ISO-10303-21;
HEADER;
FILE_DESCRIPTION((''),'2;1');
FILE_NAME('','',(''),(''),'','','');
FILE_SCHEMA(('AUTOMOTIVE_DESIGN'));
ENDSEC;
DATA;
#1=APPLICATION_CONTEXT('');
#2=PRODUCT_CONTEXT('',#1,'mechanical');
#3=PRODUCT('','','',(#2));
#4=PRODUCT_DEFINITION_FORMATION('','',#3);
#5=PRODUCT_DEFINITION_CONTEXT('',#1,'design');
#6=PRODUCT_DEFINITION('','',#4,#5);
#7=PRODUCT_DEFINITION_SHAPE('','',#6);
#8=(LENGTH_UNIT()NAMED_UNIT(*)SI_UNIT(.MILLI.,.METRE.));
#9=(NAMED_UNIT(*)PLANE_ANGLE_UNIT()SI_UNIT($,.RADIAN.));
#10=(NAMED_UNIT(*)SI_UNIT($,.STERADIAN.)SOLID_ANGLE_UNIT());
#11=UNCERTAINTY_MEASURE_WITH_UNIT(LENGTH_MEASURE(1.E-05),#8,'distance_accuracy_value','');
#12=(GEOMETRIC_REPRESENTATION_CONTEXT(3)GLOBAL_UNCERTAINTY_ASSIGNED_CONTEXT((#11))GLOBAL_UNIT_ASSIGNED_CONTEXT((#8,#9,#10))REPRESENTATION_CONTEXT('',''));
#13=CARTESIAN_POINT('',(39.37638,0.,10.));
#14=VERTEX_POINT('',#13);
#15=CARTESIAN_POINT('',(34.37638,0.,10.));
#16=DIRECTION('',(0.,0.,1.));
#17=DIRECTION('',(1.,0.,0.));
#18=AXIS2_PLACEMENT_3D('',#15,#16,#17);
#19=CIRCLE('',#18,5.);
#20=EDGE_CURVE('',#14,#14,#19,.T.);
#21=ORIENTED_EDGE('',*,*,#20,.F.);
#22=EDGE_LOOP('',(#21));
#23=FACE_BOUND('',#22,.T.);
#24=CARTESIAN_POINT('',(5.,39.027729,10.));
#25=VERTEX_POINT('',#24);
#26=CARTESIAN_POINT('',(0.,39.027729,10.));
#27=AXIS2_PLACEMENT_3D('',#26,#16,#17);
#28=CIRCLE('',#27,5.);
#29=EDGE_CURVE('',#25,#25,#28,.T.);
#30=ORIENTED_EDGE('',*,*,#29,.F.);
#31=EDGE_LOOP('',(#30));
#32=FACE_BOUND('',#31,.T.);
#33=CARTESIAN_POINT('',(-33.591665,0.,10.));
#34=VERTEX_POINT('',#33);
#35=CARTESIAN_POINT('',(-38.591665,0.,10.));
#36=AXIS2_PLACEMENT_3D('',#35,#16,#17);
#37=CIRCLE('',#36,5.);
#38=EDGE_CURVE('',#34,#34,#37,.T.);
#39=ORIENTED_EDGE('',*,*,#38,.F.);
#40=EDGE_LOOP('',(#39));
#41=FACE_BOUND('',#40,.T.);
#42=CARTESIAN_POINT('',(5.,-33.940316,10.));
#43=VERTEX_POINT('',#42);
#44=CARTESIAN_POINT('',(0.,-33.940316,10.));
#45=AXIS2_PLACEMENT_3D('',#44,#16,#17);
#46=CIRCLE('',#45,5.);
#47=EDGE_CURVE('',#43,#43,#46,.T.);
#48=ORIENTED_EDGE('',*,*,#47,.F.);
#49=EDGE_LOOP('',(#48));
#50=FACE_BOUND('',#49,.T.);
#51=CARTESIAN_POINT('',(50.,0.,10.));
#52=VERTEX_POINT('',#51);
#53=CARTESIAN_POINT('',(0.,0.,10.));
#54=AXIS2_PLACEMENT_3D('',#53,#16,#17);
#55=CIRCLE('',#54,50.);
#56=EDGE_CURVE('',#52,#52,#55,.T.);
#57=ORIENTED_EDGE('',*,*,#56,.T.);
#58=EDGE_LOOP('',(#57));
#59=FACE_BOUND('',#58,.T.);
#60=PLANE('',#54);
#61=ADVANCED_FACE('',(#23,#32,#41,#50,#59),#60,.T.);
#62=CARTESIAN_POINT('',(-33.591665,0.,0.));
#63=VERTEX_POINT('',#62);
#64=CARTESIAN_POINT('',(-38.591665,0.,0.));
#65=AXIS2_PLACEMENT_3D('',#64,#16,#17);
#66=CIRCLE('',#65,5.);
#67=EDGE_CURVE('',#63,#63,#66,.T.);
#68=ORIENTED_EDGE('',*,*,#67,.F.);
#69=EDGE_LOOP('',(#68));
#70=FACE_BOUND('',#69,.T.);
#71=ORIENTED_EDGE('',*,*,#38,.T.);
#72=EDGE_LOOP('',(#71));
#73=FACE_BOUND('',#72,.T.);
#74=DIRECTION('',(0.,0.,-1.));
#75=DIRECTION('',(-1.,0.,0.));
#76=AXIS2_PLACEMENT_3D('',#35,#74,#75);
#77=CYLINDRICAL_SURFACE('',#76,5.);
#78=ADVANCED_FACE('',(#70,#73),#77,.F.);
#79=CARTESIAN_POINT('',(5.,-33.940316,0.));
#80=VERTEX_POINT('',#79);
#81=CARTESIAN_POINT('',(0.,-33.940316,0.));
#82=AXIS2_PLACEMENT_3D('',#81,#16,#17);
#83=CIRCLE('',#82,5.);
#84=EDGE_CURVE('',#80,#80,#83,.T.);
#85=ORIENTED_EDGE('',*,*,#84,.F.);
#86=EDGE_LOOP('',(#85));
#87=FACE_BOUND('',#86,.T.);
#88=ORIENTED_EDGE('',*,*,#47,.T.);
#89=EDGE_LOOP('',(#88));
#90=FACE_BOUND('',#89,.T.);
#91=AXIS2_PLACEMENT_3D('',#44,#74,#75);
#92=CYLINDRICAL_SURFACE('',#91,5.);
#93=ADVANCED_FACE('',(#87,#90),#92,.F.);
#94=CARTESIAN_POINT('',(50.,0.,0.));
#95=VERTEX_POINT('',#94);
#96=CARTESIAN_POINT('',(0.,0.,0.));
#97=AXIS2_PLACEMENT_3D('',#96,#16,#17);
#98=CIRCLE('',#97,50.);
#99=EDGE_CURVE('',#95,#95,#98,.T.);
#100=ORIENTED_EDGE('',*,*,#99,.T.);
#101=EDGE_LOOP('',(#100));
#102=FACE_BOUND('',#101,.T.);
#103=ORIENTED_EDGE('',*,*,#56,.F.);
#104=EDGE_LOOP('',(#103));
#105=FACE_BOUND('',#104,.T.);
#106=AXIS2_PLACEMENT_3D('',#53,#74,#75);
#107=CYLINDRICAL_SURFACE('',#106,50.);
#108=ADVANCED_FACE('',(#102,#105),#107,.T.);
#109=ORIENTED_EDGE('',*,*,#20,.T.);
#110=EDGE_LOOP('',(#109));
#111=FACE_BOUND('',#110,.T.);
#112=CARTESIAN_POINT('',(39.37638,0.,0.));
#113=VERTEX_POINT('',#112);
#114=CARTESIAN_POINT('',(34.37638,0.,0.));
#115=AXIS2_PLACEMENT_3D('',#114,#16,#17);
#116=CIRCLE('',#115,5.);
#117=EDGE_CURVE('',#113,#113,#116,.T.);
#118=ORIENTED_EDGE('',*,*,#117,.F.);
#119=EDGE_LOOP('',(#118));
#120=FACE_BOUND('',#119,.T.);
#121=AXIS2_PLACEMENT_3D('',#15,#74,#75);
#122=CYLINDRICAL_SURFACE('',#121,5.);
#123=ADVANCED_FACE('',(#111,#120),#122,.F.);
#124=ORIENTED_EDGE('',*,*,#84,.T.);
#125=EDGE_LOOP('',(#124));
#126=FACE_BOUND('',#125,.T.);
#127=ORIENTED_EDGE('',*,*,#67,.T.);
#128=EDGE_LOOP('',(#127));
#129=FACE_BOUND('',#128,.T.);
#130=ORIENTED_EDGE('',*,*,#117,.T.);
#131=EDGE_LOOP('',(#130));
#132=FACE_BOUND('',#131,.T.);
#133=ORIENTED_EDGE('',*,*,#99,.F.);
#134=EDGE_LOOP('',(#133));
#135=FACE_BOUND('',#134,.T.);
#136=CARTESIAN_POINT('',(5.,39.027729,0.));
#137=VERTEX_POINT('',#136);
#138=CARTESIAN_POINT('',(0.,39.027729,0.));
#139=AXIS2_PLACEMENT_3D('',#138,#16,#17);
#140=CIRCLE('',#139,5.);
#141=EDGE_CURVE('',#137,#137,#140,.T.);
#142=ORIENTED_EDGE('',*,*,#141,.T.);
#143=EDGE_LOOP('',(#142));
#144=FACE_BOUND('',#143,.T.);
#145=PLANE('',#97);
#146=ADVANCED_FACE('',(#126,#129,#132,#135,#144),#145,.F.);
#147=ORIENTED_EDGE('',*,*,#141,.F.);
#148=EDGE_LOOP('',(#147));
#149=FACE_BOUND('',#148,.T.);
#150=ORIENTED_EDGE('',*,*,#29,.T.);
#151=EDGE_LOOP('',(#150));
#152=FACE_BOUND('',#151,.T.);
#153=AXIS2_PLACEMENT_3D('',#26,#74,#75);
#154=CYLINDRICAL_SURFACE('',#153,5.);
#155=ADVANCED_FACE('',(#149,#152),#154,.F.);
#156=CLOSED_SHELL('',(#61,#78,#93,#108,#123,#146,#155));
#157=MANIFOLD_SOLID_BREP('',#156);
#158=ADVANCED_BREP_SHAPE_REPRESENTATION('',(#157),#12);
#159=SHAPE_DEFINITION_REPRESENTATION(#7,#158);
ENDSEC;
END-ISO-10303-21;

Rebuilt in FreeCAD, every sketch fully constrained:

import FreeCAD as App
import Part
import Sketcher
Q = App.Units.Quantity

doc = App.newDocument("Part")
params = doc.addObject("Spreadsheet::Sheet", "Params")
for row, (alias, value) in enumerate([
    ("sketch1_diameter", "100 mm"),
    ("sketch1_diameter2", "10 mm"),
    ("pad1_length", "10 mm"),
], start=1):
    params.set(f"A{row}", alias)
    params.set(f"B{row}", "=" + value)
    params.setAlias(f"B{row}", alias)

body = doc.addObject("PartDesign::Body", "Body")

# Sketch on XY plane
sketch1 = doc.addObject("Sketcher::SketchObject", "Sketch")
body.addObject(sketch1)
sketch1.AttachmentSupport = (doc.XY_Plane, [""])
sketch1.MapMode = "FlatFace"
sketch1.addGeometry(Part.Circle(App.Vector(0, 0, 0), App.Vector(0, 0, 1), 50), False)
sketch1.addGeometry(Part.Circle(App.Vector(-39, 0, 0), App.Vector(0, 0, 1), 5), False)
sketch1.addGeometry(Part.Circle(App.Vector(0, -34, 0), App.Vector(0, 0, 1), 5), False)
sketch1.addGeometry(Part.Circle(App.Vector(34, 0, 0), App.Vector(0, 0, 1), 5), False)
sketch1.addGeometry(Part.Circle(App.Vector(0, 39, 0), App.Vector(0, 0, 1), 5), False)
sketch1.addConstraint(Sketcher.Constraint("Coincident", 0, 3, -1, 1))
sketch1.addConstraint(Sketcher.Constraint("Equal", 1, 2))
sketch1.addConstraint(Sketcher.Constraint("Equal", 2, 3))
sketch1.addConstraint(Sketcher.Constraint("Equal", 3, 4))
sketch1.addConstraint(Sketcher.Constraint("PointOnObject", 1, 3, -1))
sketch1.addConstraint(Sketcher.Constraint("PointOnObject", 2, 3, -2))
sketch1.addConstraint(Sketcher.Constraint("PointOnObject", 3, 3, -1))
sketch1.addConstraint(Sketcher.Constraint("PointOnObject", 4, 3, -2))
sketch1.addConstraint(Sketcher.Constraint("Diameter", 0, Q("100 mm")))
sketch1.addConstraint(Sketcher.Constraint("Diameter", 1, Q("10 mm")))
sketch1.addConstraint(Sketcher.Constraint("DistanceX", -1, 1, 3, 3, Q("34.37638 mm")))
sketch1.addConstraint(Sketcher.Constraint("DistanceY", -1, 1, 4, 3, Q("39.027729 mm")))
sketch1.addConstraint(Sketcher.Constraint("DistanceX", 1, 3, -1, 1, Q("38.591665 mm")))
sketch1.addConstraint(Sketcher.Constraint("DistanceY", 2, 3, -1, 1, Q("33.940316 mm")))
sketch1.setExpression("Constraints[8]", "Params.sketch1_diameter")
sketch1.setExpression("Constraints[9]", "Params.sketch1_diameter2")
pad1 = doc.addObject("PartDesign::Pad", "Pad")
body.addObject(pad1)
pad1.Profile = sketch1
pad1.setExpression("Length", "Params.pad1_length")

doc.recompute()
